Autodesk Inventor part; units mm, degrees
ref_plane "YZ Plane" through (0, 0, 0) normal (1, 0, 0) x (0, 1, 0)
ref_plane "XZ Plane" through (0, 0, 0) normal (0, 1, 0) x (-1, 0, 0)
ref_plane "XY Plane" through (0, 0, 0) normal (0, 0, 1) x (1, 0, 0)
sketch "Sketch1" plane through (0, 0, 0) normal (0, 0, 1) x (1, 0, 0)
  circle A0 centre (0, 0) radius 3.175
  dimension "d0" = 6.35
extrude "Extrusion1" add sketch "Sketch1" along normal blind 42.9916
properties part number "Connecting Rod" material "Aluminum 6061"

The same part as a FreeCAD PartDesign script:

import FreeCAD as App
import Part
import Sketcher

V = App.Vector
Q = App.Units.Quantity

doc = App.newDocument("Part")
body = doc.addObject("PartDesign::Body", "Body")

sketch1 = doc.addObject("Sketcher::SketchObject", "Sketch")
body.addObject(sketch1)
sketch1.AttachmentSupport = (doc.XY_Plane, [""])
sketch1.MapMode = "FlatFace"
sketch1.addGeometry(Part.Circle(V(0, 0, 0), V(0, 0, 1), 3.2), False)
sketch1.addConstraint([
    Sketcher.Constraint("Coincident", 0, 3, -1, 1),
    Sketcher.Constraint("Diameter", 0, Q("0.25 in")),
])
pad1 = doc.addObject("PartDesign::Pad", "Pad")
body.addObject(pad1)
pad1.Profile = sketch1
pad1.Length = 42.9916

doc.recompute()
